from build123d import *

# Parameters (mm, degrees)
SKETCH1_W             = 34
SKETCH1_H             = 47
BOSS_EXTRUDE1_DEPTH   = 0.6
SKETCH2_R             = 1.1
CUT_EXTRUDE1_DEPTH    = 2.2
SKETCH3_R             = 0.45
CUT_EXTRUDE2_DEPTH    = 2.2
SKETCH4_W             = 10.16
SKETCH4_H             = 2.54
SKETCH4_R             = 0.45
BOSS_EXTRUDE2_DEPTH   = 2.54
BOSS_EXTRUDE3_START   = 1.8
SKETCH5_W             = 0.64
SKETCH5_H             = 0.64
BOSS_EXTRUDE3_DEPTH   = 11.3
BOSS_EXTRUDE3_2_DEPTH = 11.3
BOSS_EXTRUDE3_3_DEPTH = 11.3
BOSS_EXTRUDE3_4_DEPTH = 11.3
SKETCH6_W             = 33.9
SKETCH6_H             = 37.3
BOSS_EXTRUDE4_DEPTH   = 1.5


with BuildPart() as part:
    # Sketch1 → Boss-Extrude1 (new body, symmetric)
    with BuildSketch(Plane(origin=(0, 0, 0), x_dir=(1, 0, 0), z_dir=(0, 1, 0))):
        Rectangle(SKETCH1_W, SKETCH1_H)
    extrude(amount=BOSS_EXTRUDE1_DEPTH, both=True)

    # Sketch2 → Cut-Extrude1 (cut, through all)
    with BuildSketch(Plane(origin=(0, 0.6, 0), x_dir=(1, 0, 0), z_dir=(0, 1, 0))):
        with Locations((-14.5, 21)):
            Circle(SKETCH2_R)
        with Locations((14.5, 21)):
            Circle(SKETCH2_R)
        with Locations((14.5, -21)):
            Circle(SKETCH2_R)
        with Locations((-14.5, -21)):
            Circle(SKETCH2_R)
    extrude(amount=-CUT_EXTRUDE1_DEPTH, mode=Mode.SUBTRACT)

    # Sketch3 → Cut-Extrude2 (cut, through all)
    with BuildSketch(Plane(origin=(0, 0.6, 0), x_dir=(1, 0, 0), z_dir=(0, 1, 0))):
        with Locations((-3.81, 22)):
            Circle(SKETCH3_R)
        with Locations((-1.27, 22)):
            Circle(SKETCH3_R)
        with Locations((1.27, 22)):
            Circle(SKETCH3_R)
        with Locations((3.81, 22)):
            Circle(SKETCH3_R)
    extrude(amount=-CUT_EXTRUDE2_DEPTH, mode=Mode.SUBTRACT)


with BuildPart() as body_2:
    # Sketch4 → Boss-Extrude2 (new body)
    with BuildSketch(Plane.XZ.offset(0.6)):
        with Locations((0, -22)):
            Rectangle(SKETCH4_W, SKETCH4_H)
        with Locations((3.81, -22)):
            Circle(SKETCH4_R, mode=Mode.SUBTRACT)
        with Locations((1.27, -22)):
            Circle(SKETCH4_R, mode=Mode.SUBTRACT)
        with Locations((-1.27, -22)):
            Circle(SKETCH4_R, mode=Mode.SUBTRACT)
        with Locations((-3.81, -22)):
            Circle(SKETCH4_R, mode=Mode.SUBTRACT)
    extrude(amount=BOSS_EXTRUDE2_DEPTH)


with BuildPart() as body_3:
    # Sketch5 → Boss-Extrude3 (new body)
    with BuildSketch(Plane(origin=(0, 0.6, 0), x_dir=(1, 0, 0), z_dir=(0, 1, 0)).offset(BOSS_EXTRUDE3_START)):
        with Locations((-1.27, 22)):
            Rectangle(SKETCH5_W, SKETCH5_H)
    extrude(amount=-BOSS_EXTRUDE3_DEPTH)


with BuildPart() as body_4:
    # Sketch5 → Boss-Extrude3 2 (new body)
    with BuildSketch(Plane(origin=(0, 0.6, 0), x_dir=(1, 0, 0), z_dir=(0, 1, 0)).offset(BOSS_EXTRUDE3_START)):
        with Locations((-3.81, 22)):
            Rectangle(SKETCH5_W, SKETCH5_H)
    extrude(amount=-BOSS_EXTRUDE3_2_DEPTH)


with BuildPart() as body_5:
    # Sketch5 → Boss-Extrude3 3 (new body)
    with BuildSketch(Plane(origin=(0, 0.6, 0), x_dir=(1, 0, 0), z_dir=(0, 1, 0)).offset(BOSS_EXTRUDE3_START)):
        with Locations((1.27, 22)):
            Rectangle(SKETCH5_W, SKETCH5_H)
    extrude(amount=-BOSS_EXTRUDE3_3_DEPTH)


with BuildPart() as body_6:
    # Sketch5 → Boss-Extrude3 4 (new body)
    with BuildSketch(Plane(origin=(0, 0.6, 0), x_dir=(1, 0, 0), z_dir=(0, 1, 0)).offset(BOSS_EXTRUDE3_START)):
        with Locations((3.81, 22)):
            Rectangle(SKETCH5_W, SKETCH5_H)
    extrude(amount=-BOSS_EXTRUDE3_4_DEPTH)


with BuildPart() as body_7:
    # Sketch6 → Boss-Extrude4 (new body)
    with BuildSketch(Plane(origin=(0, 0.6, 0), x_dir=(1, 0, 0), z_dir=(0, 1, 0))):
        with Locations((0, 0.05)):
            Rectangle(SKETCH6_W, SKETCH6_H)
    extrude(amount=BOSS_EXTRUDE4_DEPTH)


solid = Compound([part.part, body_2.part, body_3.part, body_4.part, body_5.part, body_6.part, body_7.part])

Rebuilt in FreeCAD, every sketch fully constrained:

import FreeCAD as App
import Part
import Sketcher

V = App.Vector
Q = App.Units.Quantity


def add_polygon(sketch, points):
    """Adds a closed chain of lines whose ends are joined by coincident constraints."""
    first, n = sketch.GeometryCount, len(points)
    for a, b in zip(points, points[1:] + points[:1]):
        sketch.addGeometry(Part.LineSegment(App.Vector(*a, 0), App.Vector(*b, 0)), False)
    for i in range(n):
        sketch.addConstraint(Sketcher.Constraint("Coincident", first + i, 2, first + (i + 1) % n, 1))

doc = App.newDocument("Part")
body = doc.addObject("PartDesign::Body", "Body")

# Sketch on XZ plane
sketch1 = body.newObject("Sketcher::SketchObject", "Sketch")
sketch1.AttachmentSupport = (doc.getObject("XZ_Plane"), [""])
sketch1.MapMode = "FlatFace"
add_polygon(sketch1, [(-17, -24), (-17, 24), (17, 24), (17, -24)])  # lines 0-3
sketch1.addConstraint(Sketcher.Constraint("Vertical", 0))
sketch1.addConstraint(Sketcher.Constraint("Horizontal", 1))
sketch1.addConstraint(Sketcher.Constraint("Vertical", 2))
sketch1.addConstraint(Sketcher.Constraint("Horizontal", 3))
sketch1.addConstraint(Sketcher.Constraint("Symmetric", 0, 2, 2, 2, -1, 1))
sketch1.addConstraint(Sketcher.Constraint("DistanceX", 1, 1, 1, 2, Q("34 mm")))
sketch1.addConstraint(Sketcher.Constraint("DistanceY", 0, 1, 0, 2, Q("47 mm")))
pad1 = body.newObject("PartDesign::Pad", "Pad")
pad1.Profile = sketch1
pad1.Length = 1.2
pad1.Midplane = True

# Sketch on XZ plane
sketch2 = body.newObject("Sketcher::SketchObject", "Sketch001")
sketch2.AttachmentSupport = (doc.getObject("XZ_Plane"), [""])
sketch2.MapMode = "FlatFace"
sketch2.AttachmentOffset = App.Placement(V(0, 0, -0.6), App.Rotation())
sketch2.addGeometry(Part.Circle(V(-14.5, -21, 0), V(0, 0, 1), 1.1), False)
sketch2.addGeometry(Part.Circle(V(14.5, -21, 0), V(0, 0, 1), 1.1), False)
sketch2.addGeometry(Part.Circle(V(14.5, 21, 0), V(0, 0, 1), 1.1), False)
sketch2.addGeometry(Part.Circle(V(-14.5, 21, 0), V(0, 0, 1), 1.1), False)
sketch2.addConstraint(Sketcher.Constraint("Equal", 0, 1))
sketch2.addConstraint(Sketcher.Constraint("Equal", 1, 2))
sketch2.addConstraint(Sketcher.Constraint("Equal", 2, 3))
sketch2.addConstraint(Sketcher.Constraint("Symmetric", 0, 3, 2, 3, -1, 1))
sketch2.addConstraint(Sketcher.Constraint("Symmetric", 1, 3, 3, 3, -1, 1))
sketch2.addConstraint(Sketcher.Constraint("Symmetric", 0, 3, 1, 3, -2))
sketch2.addConstraint(Sketcher.Constraint("Diameter", 0, Q("2.2 mm")))
sketch2.addConstraint(Sketcher.Constraint("DistanceY", 0, 3, -1, 1, Q("21 mm")))
sketch2.addConstraint(Sketcher.Constraint("DistanceX", 0, 3, 1, 3, Q("29 mm")))
pocket1 = body.newObject("PartDesign::Pocket", "Pocket")
pocket1.Profile = sketch2
pocket1.Type = "ThroughAll"
pocket1.Reversed = True

# Sketch on XZ plane
sketch3 = body.newObject("Sketcher::SketchObject", "Sketch002")
sketch3.AttachmentSupport = (doc.getObject("XZ_Plane"), [""])
sketch3.MapMode = "FlatFace"
sketch3.AttachmentOffset = App.Placement(V(0, 0, -0.6), App.Rotation())
sketch3.addGeometry(Part.Circle(V(-3.81, -22, 0), V(0, 0, 1), 0.45), False)
sketch3.addGeometry(Part.Circle(V(-1.27, -22, 0), V(0, 0, 1), 0.45), False)
sketch3.addGeometry(Part.Circle(V(1.27, -22, 0), V(0, 0, 1), 0.45), False)
sketch3.addGeometry(Part.Circle(V(3.81, -22, 0), V(0, 0, 1), 0.45), False)
sketch3.addConstraint(Sketcher.Constraint("Equal", 0, 1))
sketch3.addConstraint(Sketcher.Constraint("Equal", 1, 2))
sketch3.addConstraint(Sketcher.Constraint("Equal", 2, 3))
sketch3.addConstraint(Sketcher.Constraint("Symmetric", 1, 3, 2, 3, -2))
sketch3.addConstraint(Sketcher.Constraint("Symmetric", 0, 3, 3, 3, -2))
sketch3.addConstraint(Sketcher.Constraint("Horizontal", 0, 3, 1, 3))
sketch3.addConstraint(Sketcher.Constraint("Diameter", 0, Q("0.9 mm")))
sketch3.addConstraint(Sketcher.Constraint("DistanceY", 0, 3, -1, 1, Q("22 mm")))
sketch3.addConstraint(Sketcher.Constraint("DistanceX", 0, 3, -1, 1, Q("3.81 mm")))
sketch3.addConstraint(Sketcher.Constraint("DistanceX", 1, 3, -1, 1, Q("1.27 mm")))
pocket2 = body.newObject("PartDesign::Pocket", "Pocket001")
pocket2.Profile = sketch3
pocket2.Type = "ThroughAll"
pocket2.Reversed = True
body2 = doc.addObject("PartDesign::Body", "Body001")

# Sketch on XZ plane
sketch4 = body2.newObject("Sketcher::SketchObject", "Sketch003")
sketch4.AttachmentSupport = (doc.getObject("XZ_Plane001"), [""])
sketch4.MapMode = "FlatFace"
sketch4.AttachmentOffset = App.Placement(V(0, 0, 0.6), App.Rotation())
add_polygon(sketch4, [(-5.08, -20.73), (-5.08, -23.27), (5.08, -23.27), (5.08, -20.73)])  # lines 0-3
sketch4.addGeometry(Part.Circle(V(-3.81, -22, 0), V(0, 0, 1), 0.45), False)  # 4
sketch4.addGeometry(Part.Circle(V(-1.27, -22, 0), V(0, 0, 1), 0.45), False)  # 5
sketch4.addGeometry(Part.Circle(V(1.27, -22, 0), V(0, 0, 1), 0.45), False)  # 6
sketch4.addGeometry(Part.Circle(V(3.81, -22, 0), V(0, 0, 1), 0.45), False)  # 7
sketch4.addConstraint(Sketcher.Constraint("Vertical", 0))
sketch4.addConstraint(Sketcher.Constraint("Horizontal", 1))
sketch4.addConstraint(Sketcher.Constraint("Vertical", 2))
sketch4.addConstraint(Sketcher.Constraint("Horizontal", 3))
sketch4.addConstraint(Sketcher.Constraint("Equal", 4, 5))
sketch4.addConstraint(Sketcher.Constraint("Equal", 5, 6))
sketch4.addConstraint(Sketcher.Constraint("Equal", 6, 7))
sketch4.addConstraint(Sketcher.Constraint("Symmetric", 5, 3, 6, 3, -2))
sketch4.addConstraint(Sketcher.Constraint("Symmetric", 4, 3, 7, 3, -2))
sketch4.addConstraint(Sketcher.Constraint("Horizontal", 4, 3, 5, 3))
sketch4.addConstraint(Sketcher.Constraint("Diameter", 4, Q("0.9 mm")))
sketch4.addConstraint(Sketcher.Constraint("DistanceY", 4, 3, -1, 1, Q("22 mm")))
sketch4.addConstraint(Sketcher.Constraint("DistanceX", 1, 1, 1, 2, Q("10.16 mm")))
sketch4.addConstraint(Sketcher.Constraint("DistanceY", 0, 2, 0, 1, Q("2.54 mm")))
sketch4.addConstraint(Sketcher.Constraint("DistanceX", 4, 3, -1, 1, Q("3.81 mm")))
sketch4.addConstraint(Sketcher.Constraint("DistanceX", 5, 3, -1, 1, Q("1.27 mm")))
sketch4.addConstraint(Sketcher.Constraint("DistanceX", 0, 2, -1, 1, Q("5.08 mm")))
sketch4.addConstraint(Sketcher.Constraint("DistanceY", 0, 2, -1, 1, Q("23.27 mm")))
pad2 = body2.newObject("PartDesign::Pad", "Pad001")
pad2.Profile = sketch4
pad2.Length = 2.54
body3 = doc.addObject("PartDesign::Body", "Body002")

# Sketch on XZ plane
sketch5 = body3.newObject("Sketcher::SketchObject", "Sketch004")
sketch5.AttachmentSupport = (doc.getObject("XZ_Plane002"), [""])
sketch5.MapMode = "FlatFace"
sketch5.AttachmentOffset = App.Placement(V(0, 0, -2.4), App.Rotation())
add_polygon(sketch5, [(-1.6, -22.3), (-1.6, -21.7), (-0.9, -21.7), (-0.9, -22.3)])  # lines 0-3
sketch5.addConstraint(Sketcher.Constraint("Vertical", 0))
sketch5.addConstraint(Sketcher.Constraint("Horizontal", 1))
sketch5.addConstraint(Sketcher.Constraint("Vertical", 2))
sketch5.addConstraint(Sketcher.Constraint("Horizontal", 3))
sketch5.addConstraint(Sketcher.Constraint("Equal", 3, 0))
sketch5.addConstraint(Sketcher.Constraint("DistanceX", 1, 1, 1, 2, Q("0.64 mm")))
sketch5.addConstraint(Sketcher.Constraint("DistanceX", 0, 2, -1, 1, Q("1.59 mm")))
sketch5.addConstraint(Sketcher.Constraint("DistanceY", 0, 2, -1, 1, Q("21.68 mm")))
pad3 = body3.newObject("PartDesign::Pad", "Pad002")
pad3.Profile = sketch5
pad3.Length = 11.3
body4 = doc.addObject("PartDesign::Body", "Body003")

# Sketch on XZ plane
sketch6 = body4.newObject("Sketcher::SketchObject", "Sketch005")
sketch6.AttachmentSupport = (doc.getObject("XZ_Plane003"), [""])
sketch6.MapMode = "FlatFace"
sketch6.AttachmentOffset = App.Placement(V(0, 0, -2.4), App.Rotation())
add_polygon(sketch6, [(-4.1, -22.3), (-4.1, -21.7), (-3.5, -21.7), (-3.5, -22.3)])  # lines 0-3
sketch6.addConstraint(Sketcher.Constraint("Vertical", 0))
sketch6.addConstraint(Sketcher.Constraint("Horizontal", 1))
sketch6.addConstraint(Sketcher.Constraint("Vertical", 2))
sketch6.addConstraint(Sketcher.Constraint("Horizontal", 3))
sketch6.addConstraint(Sketcher.Constraint("Equal", 3, 0))
sketch6.addConstraint(Sketcher.Constraint("DistanceX", 1, 1, 1, 2, Q("0.64 mm")))
sketch6.addConstraint(Sketcher.Constraint("DistanceX", 0, 2, -1, 1, Q("4.13 mm")))
sketch6.addConstraint(Sketcher.Constraint("DistanceY", 0, 2, -1, 1, Q("21.68 mm")))
pad4 = body4.newObject("PartDesign::Pad", "Pad003")
pad4.Profile = sketch6
pad4.Length = 11.3
body5 = doc.addObject("PartDesign::Body", "Body004")

# Sketch on XZ plane
sketch7 = body5.newObject("Sketcher::SketchObject", "Sketch006")
sketch7.AttachmentSupport = (doc.getObject("XZ_Plane004"), [""])
sketch7.MapMode = "FlatFace"
sketch7.AttachmentOffset = App.Placement(V(0, 0, -2.4), App.Rotation())
add_polygon(sketch7, [(0.9, -22.3), (0.9, -21.7), (1.6, -21.7), (1.6, -22.3)])  # lines 0-3
sketch7.addConstraint(Sketcher.Constraint("Vertical", 0))
sketch7.addConstraint(Sketcher.Constraint("Horizontal", 1))
sketch7.addConstraint(Sketcher.Constraint("Vertical", 2))
sketch7.addConstraint(Sketcher.Constraint("Horizontal", 3))
sketch7.addConstraint(Sketcher.Constraint("Equal", 3, 0))
sketch7.addConstraint(Sketcher.Constraint("DistanceX", 1, 1, 1, 2, Q("0.64 mm")))
sketch7.addConstraint(Sketcher.Constraint("DistanceX", -1, 1, 0, 2, Q("0.95 mm")))
sketch7.addConstraint(Sketcher.Constraint("DistanceY", 0, 2, -1, 1, Q("21.68 mm")))
pad5 = body5.newObject("PartDesign::Pad", "Pad004")
pad5.Profile = sketch7
pad5.Length = 11.3
body6 = doc.addObject("PartDesign::Body", "Body005")

# Sketch on XZ plane
sketch8 = body6.newObject("Sketcher::SketchObject", "Sketch007")
sketch8.AttachmentSupport = (doc.getObject("XZ_Plane005"), [""])
sketch8.MapMode = "FlatFace"
sketch8.AttachmentOffset = App.Placement(V(0, 0, -2.4), App.Rotation())
add_polygon(sketch8, [(3.5, -22.3), (3.5, -21.7), (4.1, -21.7), (4.1, -22.3)])  # lines 0-3
sketch8.addConstraint(Sketcher.Constraint("Vertical", 0))
sketch8.addConstraint(Sketcher.Constraint("Horizontal", 1))
sketch8.addConstraint(Sketcher.Constraint("Vertical", 2))
sketch8.addConstraint(Sketcher.Constraint("Horizontal", 3))
sketch8.addConstraint(Sketcher.Constraint("Equal", 3, 0))
sketch8.addConstraint(Sketcher.Constraint("DistanceX", 1, 1, 1, 2, Q("0.64 mm")))
sketch8.addConstraint(Sketcher.Constraint("DistanceX", -1, 1, 0, 2, Q("3.49 mm")))
sketch8.addConstraint(Sketcher.Constraint("DistanceY", 0, 2, -1, 1, Q("21.68 mm")))
pad6 = body6.newObject("PartDesign::Pad", "Pad005")
pad6.Profile = sketch8
pad6.Length = 11.3
body7 = doc.addObject("PartDesign::Body", "Body006")

# Sketch on XZ plane
sketch9 = body7.newObject("Sketcher::SketchObject", "Sketch008")
sketch9.AttachmentSupport = (doc.getObject("XZ_Plane006"), [""])
sketch9.MapMode = "FlatFace"
sketch9.AttachmentOffset = App.Placement(V(0, 0, -0.6), App.Rotation())
add_polygon(sketch9, [(-17, -19), (-17, 19), (17, 19), (17, -19)])  # lines 0-3
sketch9.addConstraint(Sketcher.Constraint("Vertical", 0))
sketch9.addConstraint(Sketcher.Constraint("Horizontal", 1))
sketch9.addConstraint(Sketcher.Constraint("Vertical", 2))
sketch9.addConstraint(Sketcher.Constraint("Horizontal", 3))
sketch9.addConstraint(Sketcher.Constraint("DistanceX", 1, 1, 1, 2, Q("33.9 mm")))
sketch9.addConstraint(Sketcher.Constraint("DistanceY", 0, 1, 0, 2, Q("37.3 mm")))
sketch9.addConstraint(Sketcher.Constraint("DistanceY", -1, 1, 0, 2, Q("18.6 mm")))
sketch9.addConstraint(Sketcher.Constraint("DistanceX", 0, 2, -1, 1, Q("16.95 mm")))
pad7 = body7.newObject("PartDesign::Pad", "Pad006")
pad7.Profile = sketch9
pad7.Length = 1.5
pad7.Reversed = True

doc.recompute()
